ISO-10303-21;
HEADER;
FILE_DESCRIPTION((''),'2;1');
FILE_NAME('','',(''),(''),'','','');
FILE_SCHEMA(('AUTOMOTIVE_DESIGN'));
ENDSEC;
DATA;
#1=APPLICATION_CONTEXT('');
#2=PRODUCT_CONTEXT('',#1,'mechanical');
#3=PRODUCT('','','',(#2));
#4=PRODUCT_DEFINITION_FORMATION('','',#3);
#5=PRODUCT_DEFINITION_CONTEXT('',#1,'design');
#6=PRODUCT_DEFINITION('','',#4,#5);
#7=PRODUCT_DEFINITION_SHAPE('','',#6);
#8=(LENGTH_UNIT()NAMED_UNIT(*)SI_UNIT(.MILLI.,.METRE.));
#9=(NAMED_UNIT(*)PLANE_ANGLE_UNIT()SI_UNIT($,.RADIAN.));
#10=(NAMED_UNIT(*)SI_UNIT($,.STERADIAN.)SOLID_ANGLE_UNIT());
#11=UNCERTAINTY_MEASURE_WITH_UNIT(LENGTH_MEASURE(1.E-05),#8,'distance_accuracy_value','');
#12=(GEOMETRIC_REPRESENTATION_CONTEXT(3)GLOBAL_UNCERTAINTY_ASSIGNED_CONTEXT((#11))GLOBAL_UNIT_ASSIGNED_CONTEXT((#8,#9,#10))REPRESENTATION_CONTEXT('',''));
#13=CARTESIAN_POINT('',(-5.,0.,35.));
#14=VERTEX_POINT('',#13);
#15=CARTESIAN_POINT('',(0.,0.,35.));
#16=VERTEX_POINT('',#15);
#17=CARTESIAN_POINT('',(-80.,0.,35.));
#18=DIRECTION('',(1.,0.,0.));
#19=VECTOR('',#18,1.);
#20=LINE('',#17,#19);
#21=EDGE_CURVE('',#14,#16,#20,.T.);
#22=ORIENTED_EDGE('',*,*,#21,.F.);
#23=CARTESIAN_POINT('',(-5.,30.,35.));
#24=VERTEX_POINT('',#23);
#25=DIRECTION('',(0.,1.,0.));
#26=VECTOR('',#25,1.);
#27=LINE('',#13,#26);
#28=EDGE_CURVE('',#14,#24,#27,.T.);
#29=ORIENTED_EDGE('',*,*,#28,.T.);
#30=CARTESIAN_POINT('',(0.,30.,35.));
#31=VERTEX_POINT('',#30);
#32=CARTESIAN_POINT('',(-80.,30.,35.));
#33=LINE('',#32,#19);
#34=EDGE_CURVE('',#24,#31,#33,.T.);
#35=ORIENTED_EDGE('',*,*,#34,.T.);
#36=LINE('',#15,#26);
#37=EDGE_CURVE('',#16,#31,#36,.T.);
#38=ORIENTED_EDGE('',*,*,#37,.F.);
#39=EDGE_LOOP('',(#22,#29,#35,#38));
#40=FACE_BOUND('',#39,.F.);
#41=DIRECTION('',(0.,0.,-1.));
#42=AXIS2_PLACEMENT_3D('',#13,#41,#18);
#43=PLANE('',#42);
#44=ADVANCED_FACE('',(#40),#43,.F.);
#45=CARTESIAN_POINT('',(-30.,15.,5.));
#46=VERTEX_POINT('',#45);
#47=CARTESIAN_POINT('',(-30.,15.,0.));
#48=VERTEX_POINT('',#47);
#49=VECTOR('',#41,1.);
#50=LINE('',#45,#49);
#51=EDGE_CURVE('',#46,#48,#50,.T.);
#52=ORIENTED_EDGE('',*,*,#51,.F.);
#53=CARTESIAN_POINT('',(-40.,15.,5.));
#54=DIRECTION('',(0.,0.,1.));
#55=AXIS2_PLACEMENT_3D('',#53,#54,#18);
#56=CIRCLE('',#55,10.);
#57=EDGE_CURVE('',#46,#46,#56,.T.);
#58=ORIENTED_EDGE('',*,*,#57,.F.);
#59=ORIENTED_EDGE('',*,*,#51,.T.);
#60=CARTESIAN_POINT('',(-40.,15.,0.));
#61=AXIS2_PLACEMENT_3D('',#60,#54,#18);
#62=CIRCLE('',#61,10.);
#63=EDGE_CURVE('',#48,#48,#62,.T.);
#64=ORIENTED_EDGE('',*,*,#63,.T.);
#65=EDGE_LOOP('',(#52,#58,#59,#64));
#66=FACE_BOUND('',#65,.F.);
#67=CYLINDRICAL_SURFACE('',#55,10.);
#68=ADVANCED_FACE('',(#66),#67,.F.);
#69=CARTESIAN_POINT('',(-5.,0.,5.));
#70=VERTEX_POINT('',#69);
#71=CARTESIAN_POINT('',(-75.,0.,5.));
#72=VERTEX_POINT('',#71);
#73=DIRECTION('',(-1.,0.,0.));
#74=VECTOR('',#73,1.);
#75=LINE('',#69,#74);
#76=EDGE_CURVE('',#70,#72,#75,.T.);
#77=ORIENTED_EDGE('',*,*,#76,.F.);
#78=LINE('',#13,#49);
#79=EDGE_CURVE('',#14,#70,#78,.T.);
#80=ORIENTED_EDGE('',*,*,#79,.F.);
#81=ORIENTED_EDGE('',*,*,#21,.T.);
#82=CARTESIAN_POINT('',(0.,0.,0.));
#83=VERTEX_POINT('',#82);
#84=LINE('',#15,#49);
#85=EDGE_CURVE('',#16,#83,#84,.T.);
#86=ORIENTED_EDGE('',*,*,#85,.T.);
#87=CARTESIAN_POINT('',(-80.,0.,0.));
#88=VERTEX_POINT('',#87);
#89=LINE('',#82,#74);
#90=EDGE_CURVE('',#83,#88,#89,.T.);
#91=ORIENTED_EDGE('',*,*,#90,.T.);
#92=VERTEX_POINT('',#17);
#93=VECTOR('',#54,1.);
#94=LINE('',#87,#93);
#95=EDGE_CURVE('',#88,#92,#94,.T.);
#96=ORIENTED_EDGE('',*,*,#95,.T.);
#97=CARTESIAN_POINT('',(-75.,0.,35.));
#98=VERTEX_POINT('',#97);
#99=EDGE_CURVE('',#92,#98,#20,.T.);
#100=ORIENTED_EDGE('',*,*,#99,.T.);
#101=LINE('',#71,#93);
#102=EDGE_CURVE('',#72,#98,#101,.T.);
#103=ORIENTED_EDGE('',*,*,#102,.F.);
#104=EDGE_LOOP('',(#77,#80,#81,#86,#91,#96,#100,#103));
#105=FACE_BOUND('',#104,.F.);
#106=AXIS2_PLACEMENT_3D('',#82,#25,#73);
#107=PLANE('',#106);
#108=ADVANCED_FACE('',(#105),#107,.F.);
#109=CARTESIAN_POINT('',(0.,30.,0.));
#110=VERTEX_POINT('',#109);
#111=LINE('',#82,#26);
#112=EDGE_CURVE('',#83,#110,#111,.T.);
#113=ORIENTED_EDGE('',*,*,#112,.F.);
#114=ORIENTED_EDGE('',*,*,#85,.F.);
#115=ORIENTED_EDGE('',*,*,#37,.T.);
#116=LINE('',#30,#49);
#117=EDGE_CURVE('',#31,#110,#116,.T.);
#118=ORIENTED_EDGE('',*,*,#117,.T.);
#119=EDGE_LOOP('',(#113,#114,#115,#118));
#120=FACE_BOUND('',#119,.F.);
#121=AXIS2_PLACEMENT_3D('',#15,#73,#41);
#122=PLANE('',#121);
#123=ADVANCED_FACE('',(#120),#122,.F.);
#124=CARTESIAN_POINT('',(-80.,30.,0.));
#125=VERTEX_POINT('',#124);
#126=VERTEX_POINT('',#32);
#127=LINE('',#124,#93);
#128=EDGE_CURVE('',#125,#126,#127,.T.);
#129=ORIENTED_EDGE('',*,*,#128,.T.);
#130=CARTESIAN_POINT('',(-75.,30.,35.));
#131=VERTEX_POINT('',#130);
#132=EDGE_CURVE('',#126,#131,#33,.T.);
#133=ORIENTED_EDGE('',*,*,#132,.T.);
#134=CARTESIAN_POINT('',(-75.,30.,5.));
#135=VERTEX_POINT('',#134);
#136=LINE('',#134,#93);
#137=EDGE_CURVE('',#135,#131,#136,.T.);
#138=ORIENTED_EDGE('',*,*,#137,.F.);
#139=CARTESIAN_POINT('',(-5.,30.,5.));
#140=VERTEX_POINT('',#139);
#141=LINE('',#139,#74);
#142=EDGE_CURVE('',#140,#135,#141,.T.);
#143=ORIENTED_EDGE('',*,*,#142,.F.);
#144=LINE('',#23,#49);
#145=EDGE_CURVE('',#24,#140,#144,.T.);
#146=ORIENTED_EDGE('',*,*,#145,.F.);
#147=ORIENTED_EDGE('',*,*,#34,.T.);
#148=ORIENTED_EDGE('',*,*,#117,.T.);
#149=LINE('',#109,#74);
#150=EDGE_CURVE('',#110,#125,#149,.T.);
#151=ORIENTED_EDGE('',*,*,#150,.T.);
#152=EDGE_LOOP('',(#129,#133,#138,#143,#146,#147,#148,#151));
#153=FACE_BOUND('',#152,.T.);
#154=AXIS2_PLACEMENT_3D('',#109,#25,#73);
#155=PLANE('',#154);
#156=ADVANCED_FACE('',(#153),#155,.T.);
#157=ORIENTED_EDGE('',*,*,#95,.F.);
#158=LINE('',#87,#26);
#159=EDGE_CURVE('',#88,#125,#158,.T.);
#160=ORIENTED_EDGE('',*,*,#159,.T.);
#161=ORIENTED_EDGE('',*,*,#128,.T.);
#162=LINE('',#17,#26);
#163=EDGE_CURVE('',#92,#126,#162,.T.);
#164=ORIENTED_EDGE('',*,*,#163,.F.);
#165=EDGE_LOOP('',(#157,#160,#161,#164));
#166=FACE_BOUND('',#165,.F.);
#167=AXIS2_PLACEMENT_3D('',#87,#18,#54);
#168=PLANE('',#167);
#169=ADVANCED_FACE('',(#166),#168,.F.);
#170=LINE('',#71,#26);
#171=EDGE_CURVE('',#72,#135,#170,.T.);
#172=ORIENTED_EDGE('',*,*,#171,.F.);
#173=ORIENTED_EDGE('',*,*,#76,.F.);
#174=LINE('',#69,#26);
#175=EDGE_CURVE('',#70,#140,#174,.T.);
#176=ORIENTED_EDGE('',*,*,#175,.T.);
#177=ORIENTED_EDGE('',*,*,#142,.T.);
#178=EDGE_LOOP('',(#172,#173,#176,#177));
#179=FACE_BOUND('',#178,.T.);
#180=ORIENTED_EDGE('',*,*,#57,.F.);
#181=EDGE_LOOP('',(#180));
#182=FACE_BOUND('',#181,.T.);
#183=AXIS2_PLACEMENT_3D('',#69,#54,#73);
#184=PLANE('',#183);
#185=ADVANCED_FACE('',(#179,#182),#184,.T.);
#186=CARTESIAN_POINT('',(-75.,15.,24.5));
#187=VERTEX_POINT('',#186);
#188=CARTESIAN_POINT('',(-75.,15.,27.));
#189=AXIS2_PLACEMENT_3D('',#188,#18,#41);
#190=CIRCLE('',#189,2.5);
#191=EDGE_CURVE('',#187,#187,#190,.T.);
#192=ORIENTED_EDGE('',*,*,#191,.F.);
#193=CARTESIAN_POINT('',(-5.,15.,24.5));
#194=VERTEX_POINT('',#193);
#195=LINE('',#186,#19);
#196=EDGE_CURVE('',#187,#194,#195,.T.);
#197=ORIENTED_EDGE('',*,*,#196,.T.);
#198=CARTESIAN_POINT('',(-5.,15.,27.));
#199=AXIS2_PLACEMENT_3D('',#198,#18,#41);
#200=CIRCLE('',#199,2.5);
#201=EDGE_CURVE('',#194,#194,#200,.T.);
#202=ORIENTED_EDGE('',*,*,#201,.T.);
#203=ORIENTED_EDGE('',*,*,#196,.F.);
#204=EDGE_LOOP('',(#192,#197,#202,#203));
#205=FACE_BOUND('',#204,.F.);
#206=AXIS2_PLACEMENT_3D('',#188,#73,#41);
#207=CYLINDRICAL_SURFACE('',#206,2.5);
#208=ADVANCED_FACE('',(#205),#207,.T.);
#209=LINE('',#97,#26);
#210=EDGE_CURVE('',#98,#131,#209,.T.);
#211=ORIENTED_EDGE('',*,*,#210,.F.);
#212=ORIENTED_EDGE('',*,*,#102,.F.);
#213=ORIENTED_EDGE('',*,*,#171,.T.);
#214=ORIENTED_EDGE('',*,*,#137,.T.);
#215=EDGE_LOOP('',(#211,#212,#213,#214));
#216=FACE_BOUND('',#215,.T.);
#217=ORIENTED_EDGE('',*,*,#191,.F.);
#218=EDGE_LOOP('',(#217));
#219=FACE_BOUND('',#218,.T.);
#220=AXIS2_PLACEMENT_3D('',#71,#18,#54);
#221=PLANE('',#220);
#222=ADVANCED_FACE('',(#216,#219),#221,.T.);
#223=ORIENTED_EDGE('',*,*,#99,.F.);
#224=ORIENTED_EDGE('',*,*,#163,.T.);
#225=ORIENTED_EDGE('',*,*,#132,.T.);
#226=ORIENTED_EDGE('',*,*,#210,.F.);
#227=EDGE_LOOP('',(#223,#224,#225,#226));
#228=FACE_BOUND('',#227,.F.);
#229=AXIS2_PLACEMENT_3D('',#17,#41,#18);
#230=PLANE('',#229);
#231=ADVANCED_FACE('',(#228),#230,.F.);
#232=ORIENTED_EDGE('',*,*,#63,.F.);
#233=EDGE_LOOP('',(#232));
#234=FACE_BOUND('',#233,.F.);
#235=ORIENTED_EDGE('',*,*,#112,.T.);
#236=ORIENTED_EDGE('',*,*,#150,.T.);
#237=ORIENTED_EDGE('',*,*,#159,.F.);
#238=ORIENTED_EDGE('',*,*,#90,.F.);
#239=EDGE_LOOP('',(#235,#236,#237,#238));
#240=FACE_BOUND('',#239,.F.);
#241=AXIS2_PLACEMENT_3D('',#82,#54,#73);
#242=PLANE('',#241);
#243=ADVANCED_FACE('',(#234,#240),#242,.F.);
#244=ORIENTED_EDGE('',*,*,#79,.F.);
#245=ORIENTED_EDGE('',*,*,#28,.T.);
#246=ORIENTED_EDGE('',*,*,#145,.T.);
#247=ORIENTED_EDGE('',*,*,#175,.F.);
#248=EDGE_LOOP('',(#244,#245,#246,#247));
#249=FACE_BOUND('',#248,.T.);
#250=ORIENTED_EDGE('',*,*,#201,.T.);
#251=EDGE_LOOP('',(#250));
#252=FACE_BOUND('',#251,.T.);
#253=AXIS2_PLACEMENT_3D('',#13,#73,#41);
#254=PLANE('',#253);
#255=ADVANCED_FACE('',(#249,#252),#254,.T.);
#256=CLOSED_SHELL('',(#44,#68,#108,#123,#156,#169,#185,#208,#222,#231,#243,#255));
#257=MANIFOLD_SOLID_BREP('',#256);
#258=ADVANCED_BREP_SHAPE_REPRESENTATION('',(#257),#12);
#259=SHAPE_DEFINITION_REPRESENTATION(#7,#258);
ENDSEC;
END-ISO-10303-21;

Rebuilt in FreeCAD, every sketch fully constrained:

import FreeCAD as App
import Part
import Sketcher

V = App.Vector
Q = App.Units.Quantity


def add_polygon(sketch, points):
    """Adds a closed chain of lines whose ends are joined by coincident constraints."""
    first, n = sketch.GeometryCount, len(points)
    for a, b in zip(points, points[1:] + points[:1]):
        sketch.addGeometry(Part.LineSegment(App.Vector(*a, 0), App.Vector(*b, 0)), False)
    for i in range(n):
        sketch.addConstraint(Sketcher.Constraint("Coincident", first + i, 2, first + (i + 1) % n, 1))

doc = App.newDocument("Part")
body = doc.addObject("PartDesign::Body", "Body")

# Sketch on XZ plane
sketch1 = body.newObject("Sketcher::SketchObject", "Sketch")
sketch1.AttachmentSupport = (doc.getObject("XZ_Plane"), [""])
sketch1.MapMode = "FlatFace"
add_polygon(sketch1, [(0, 35), (0, 0), (-80, 0), (-80, 35), (-75, 35), (-75, 5), (-5, 5), (-5, 35)])  # lines 0-7
sketch1.addConstraint(Sketcher.Constraint("Vertical", 0))
sketch1.addConstraint(Sketcher.Constraint("Horizontal", 1))
sketch1.addConstraint(Sketcher.Constraint("Vertical", 2))
sketch1.addConstraint(Sketcher.Constraint("Horizontal", 3))
sketch1.addConstraint(Sketcher.Constraint("Vertical", 4))
sketch1.addConstraint(Sketcher.Constraint("Horizontal", 5))
sketch1.addConstraint(Sketcher.Constraint("Vertical", 6))
sketch1.addConstraint(Sketcher.Constraint("Horizontal", 7))
sketch1.addConstraint(Sketcher.Constraint("Coincident", 0, 2, -1, 1))
sketch1.addConstraint(Sketcher.Constraint("Horizontal", 3, 2, 6, 2))
sketch1.addConstraint(Sketcher.Constraint("Equal", 3, 7))
sketch1.addConstraint(Sketcher.Constraint("DistanceX", 1, 2, 1, 1, Q("80 mm")))
sketch1.addConstraint(Sketcher.Constraint("DistanceX", 3, 1, 3, 2, Q("5 mm")))
sketch1.addConstraint(Sketcher.Constraint("DistanceY", 0, 2, 0, 1, Q("35 mm")))
sketch1.addConstraint(Sketcher.Constraint("DistanceY", 4, 2, 4, 1, Q("30 mm")))
pad1 = body.newObject("PartDesign::Pad", "Pad")
pad1.Profile = sketch1
pad1.Length = 30
pad1.Reversed = True

# Sketch on XY plane
sketch2 = body.newObject("Sketcher::SketchObject", "Sketch001")
sketch2.AttachmentSupport = (doc.getObject("XY_Plane"), [""])
sketch2.MapMode = "FlatFace"
sketch2.AttachmentOffset = App.Placement(V(0, 0, 5), App.Rotation())
sketch2.addGeometry(Part.Circle(V(-40, 15, 0), V(0, 0, 1), 10), False)
sketch2.addConstraint(Sketcher.Constraint("Diameter", 0, Q("20 mm")))
sketch2.addConstraint(Sketcher.Constraint("DistanceX", 0, 3, -1, 1, Q("40 mm")))
sketch2.addConstraint(Sketcher.Constraint("DistanceY", -1, 1, 0, 3, Q("15 mm")))
pocket1 = body.newObject("PartDesign::Pocket", "Pocket")
pocket1.Profile = sketch2
pocket1.Length = 30

# Sketch on YZ plane
sketch3 = body.newObject("Sketcher::SketchObject", "Sketch002")
sketch3.AttachmentSupport = (doc.getObject("YZ_Plane"), [""])
sketch3.MapMode = "FlatFace"
sketch3.AttachmentOffset = App.Placement(V(0, 0, -75), App.Rotation())
sketch3.addGeometry(Part.Circle(V(15, 27, 0), V(0, 0, 1), 2.5), False)
sketch3.addConstraint(Sketcher.Constraint("Diameter", 0, Q("5 mm")))
sketch3.addConstraint(Sketcher.Constraint("DistanceX", -1, 1, 0, 3, Q("15 mm")))
sketch3.addConstraint(Sketcher.Constraint("DistanceY", -1, 1, 0, 3, Q("27 mm")))
pad2 = body.newObject("PartDesign::Pad", "Pad001")
pad2.Profile = sketch3
pad2.Length = 70

doc.recompute()
